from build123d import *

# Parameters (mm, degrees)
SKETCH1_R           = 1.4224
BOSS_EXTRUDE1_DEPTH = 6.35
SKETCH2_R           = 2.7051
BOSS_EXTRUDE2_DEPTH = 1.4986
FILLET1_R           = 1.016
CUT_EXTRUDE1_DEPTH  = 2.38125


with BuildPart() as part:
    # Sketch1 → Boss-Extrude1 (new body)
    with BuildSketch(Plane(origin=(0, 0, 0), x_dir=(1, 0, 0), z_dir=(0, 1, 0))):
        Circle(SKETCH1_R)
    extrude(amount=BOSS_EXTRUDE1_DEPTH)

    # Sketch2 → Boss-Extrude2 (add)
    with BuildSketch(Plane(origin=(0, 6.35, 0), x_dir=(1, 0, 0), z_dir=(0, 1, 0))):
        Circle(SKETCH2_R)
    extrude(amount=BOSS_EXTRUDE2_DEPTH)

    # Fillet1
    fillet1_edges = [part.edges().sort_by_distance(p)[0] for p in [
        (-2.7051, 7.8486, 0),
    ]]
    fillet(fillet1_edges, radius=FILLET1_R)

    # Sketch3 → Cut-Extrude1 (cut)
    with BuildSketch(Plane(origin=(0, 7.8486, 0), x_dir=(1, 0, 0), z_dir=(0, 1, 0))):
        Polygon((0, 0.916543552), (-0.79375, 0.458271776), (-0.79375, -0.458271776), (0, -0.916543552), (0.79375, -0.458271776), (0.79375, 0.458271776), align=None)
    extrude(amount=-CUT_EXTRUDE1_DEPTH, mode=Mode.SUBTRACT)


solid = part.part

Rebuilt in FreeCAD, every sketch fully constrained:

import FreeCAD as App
import Part
import Sketcher

V = App.Vector
Q = App.Units.Quantity


def edges_at(feature, points):
    """Names of the edges that pass closest to the given points."""
    edges = feature.Shape.Edges
    near = lambda p: min(range(len(edges)), key=lambda i: edges[i].distToShape(Part.Vertex(*p))[0])
    return sorted({f"Edge{near(p) + 1}" for p in points})

doc = App.newDocument("Part")
body = doc.addObject("PartDesign::Body", "Body")

# Sketch on XZ plane
sketch1 = body.newObject("Sketcher::SketchObject", "Sketch")
sketch1.AttachmentSupport = (doc.getObject("XZ_Plane"), [""])
sketch1.MapMode = "FlatFace"
sketch1.addGeometry(Part.Circle(V(0, 0, 0), V(0, 0, 1), 1.4), False)
sketch1.addConstraint([
    Sketcher.Constraint("Coincident", 0, 3, -1, 1),
    Sketcher.Constraint("Diameter", 0, Q("0.112 in")),
])
pad1 = body.newObject("PartDesign::Pad", "Pad")
pad1.Profile = sketch1
pad1.Length = Q("0.25 in")
pad1.Reversed = True

# Sketch on XZ plane
sketch2 = body.newObject("Sketcher::SketchObject", "Sketch001")
sketch2.AttachmentSupport = (doc.getObject("XZ_Plane"), [""])
sketch2.MapMode = "FlatFace"
sketch2.AttachmentOffset = App.Placement(V(0, 0, -0.25 * 25.4), App.Rotation())
sketch2.addGeometry(Part.Circle(V(0, 0, 0), V(0, 0, 1), 2.7), False)
sketch2.addConstraint([
    Sketcher.Constraint("Coincident", 0, 3, -1, 1),
    Sketcher.Constraint("Diameter", 0, Q("0.213 in")),
])
pad2 = body.newObject("PartDesign::Pad", "Pad001")
pad2.Profile = sketch2
pad2.Length = Q("0.059 in")
pad2.Reversed = True
doc.recompute()

fillet = body.newObject("PartDesign::Fillet", "Fillet")
fillet.Base = (pad2, edges_at(pad2, [(-2.705, 7.849, 0)]))
fillet.Radius = Q("0.04 in")

# Sketch on XZ plane
sketch3 = body.newObject("Sketcher::SketchObject", "Sketch002")
sketch3.AttachmentSupport = (doc.getObject("XZ_Plane"), [""])
sketch3.MapMode = "FlatFace"
sketch3.AttachmentOffset = App.Placement(V(0, 0, -0.309 * 25.4), App.Rotation())
sketch3.addGeometry([
    Part.LineSegment(V(0, -0.9, 0), V(-0.8, -0.5, 0)),  # 0
    Part.LineSegment(V(-0.8, -0.5, 0), V(-0.8, 0.5, 0)),  # 1
    Part.LineSegment(V(-0.8, 0.5, 0), V(0, 0.9, 0)),  # 2
    Part.LineSegment(V(0, 0.9, 0), V(0.8, 0.5, 0)),  # 3
    Part.LineSegment(V(0.8, 0.5, 0), V(0.8, -0.5, 0)),  # 4
    Part.LineSegment(V(0.8, -0.5, 0), V(0, -0.9, 0)),  # 5
], False)
sketch3.addConstraint([
    Sketcher.Constraint("Coincident", 0, 2, 1, 1),
    Sketcher.Constraint("Coincident", 1, 2, 2, 1),
    Sketcher.Constraint("Coincident", 2, 2, 3, 1),
    Sketcher.Constraint("Coincident", 3, 2, 4, 1),
    Sketcher.Constraint("Coincident", 4, 2, 5, 1),
    Sketcher.Constraint("Coincident", 5, 2, 0, 1),
    Sketcher.Constraint("Vertical", 1),
    Sketcher.Constraint("Vertical", 4),
    Sketcher.Constraint("Symmetric", 0, 2, 3, 2, -1, 1),
    Sketcher.Constraint("Symmetric", 2, 2, 5, 2, -1, 1),
    Sketcher.Constraint("PointOnObject", 2, 2, -2),
    Sketcher.Constraint("Parallel", 2, 5),
    Sketcher.Constraint("Horizontal", 1, 2, 3, 2),
    Sketcher.Constraint("Angle", 0, Q("150 deg")),
    Sketcher.Constraint("DistanceX", 0, 2, -1, 1, Q("0.03125 in")),
    Sketcher.Constraint("DistanceY", 1, 1, 1, 2, Q("0.916544 mm")),
])
pocket1 = body.newObject("PartDesign::Pocket", "Pocket")
pocket1.Profile = sketch3
pocket1.Length = Q("0.09375 in")
pocket1.Reversed = True

doc.recompute()
